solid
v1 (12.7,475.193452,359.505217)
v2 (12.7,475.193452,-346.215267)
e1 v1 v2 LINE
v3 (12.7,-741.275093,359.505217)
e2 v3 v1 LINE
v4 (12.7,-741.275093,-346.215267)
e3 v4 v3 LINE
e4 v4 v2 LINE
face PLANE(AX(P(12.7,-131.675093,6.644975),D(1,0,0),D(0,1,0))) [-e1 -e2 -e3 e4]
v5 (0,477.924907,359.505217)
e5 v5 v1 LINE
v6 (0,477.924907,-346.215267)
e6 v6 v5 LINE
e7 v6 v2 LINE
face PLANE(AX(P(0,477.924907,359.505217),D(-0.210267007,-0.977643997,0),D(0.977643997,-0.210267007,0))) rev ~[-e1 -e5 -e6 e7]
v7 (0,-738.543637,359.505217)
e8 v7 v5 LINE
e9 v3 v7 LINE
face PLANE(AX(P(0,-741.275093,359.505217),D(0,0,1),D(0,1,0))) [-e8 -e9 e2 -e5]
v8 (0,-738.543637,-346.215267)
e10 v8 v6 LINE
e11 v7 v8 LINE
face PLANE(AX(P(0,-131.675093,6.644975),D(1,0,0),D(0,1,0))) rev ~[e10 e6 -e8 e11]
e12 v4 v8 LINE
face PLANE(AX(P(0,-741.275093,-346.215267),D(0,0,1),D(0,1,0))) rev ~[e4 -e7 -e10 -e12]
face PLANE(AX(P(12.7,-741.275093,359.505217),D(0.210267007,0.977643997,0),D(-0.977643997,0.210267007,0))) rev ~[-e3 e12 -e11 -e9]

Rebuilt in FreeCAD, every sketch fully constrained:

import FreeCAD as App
import Part
import Sketcher
Q = App.Units.Quantity


def add_polygon(sketch, points):
    """Adds a closed chain of lines whose ends are joined by coincident constraints."""
    first, n = sketch.GeometryCount, len(points)
    for a, b in zip(points, points[1:] + points[:1]):
        sketch.addGeometry(Part.LineSegment(App.Vector(*a, 0), App.Vector(*b, 0)), False)
    for i in range(n):
        sketch.addConstraint(Sketcher.Constraint("Coincident", first + i, 2, first + (i + 1) % n, 1))

doc = App.newDocument("Part")
params = doc.addObject("Spreadsheet::Sheet", "Params")
for row, (alias, value) in enumerate([
    ("sketch1_width", "48 in"),
    ("pad1_length", "0.5 in"),
    ("sketch2_width", "0.5 in"),
], start=1):
    params.set(f"A{row}", alias)
    params.set(f"B{row}", "=" + value)
    params.setAlias(f"B{row}", alias)

body = doc.addObject("PartDesign::Body", "Body")

sketch1 = doc.addObject("Sketcher::SketchObject", "Sketch")
body.addObject(sketch1)
sketch1.AttachmentSupport = (doc.YZ_Plane, [""])
sketch1.MapMode = "FlatFace"
add_polygon(sketch1, [(-741, 360), (-741, -346), (478, -346), (478, 360)])
sketch1.addConstraint([
    Sketcher.Constraint("Vertical", 0),
    Sketcher.Constraint("Horizontal", 1),
    Sketcher.Constraint("Vertical", 2),
    Sketcher.Constraint("Horizontal", 3),
    Sketcher.Constraint("DistanceX", 1, 1, 1, 2, Q("48 in")),
    Sketcher.Constraint("DistanceY", 0, 2, 0, 1, 705.720483),
    Sketcher.Constraint("DistanceX", 0, 2, -1, 1, 741.275093),
    Sketcher.Constraint("DistanceY", 0, 2, -1, 1, 346.215267),
])
sketch1.setExpression("Constraints[8]", "Params.sketch1_width")
pad1 = doc.addObject("PartDesign::Pad", "Pad")
body.addObject(pad1)
pad1.Profile = sketch1
pad1.setExpression("Length", "Params.pad1_length")

sketch2 = doc.addObject("Sketcher::SketchObject", "Sketch001")
body.addObject(sketch2)
sketch2.AttachmentSupport = (doc.XY_Plane, [""])
sketch2.MapMode = "FlatFace"
sketch2.AttachmentOffset = App.Placement(App.Vector(0, 0, 359.505217), App.Rotation())
add_polygon(sketch2, [(12.7, 477.9), (0, 477.9), (12.7, 475.2)])
add_polygon(sketch2, [(12.7, -741.3), (0, -738.5), (0, -741.3)])
sketch2.addConstraint([
    Sketcher.Constraint("Horizontal", 0),
    Sketcher.Constraint("Vertical", 2),
    Sketcher.Constraint("Vertical", 4),
    Sketcher.Constraint("Horizontal", 5),
    Sketcher.Constraint("PointOnObject", 0, 2, -2),
    Sketcher.Constraint("PointOnObject", 3, 2, -2),
    Sketcher.Constraint("Parallel", 1, 3),
    Sketcher.Constraint("Vertical", 2, 2, 5, 2),
    Sketcher.Constraint("DistanceX", 0, 2, 0, 1, Q("0.5 in")),
    Sketcher.Constraint("DistanceY", 4, 2, 0, 2, Q("48 in")),
    Sketcher.Constraint("DistanceY", 2, 1, 2, 2, 2.731455),
    Sketcher.Constraint("DistanceY", -1, 1, 1, 2, 475.193452),
])
sketch2.setExpression("Constraints[14]", "Params.sketch2_width")
pocket1 = doc.addObject("PartDesign::Pocket", "Pocket")
body.addObject(pocket1)
pocket1.Profile = sketch2
pocket1.Type = "ThroughAll"

doc.recompute()
